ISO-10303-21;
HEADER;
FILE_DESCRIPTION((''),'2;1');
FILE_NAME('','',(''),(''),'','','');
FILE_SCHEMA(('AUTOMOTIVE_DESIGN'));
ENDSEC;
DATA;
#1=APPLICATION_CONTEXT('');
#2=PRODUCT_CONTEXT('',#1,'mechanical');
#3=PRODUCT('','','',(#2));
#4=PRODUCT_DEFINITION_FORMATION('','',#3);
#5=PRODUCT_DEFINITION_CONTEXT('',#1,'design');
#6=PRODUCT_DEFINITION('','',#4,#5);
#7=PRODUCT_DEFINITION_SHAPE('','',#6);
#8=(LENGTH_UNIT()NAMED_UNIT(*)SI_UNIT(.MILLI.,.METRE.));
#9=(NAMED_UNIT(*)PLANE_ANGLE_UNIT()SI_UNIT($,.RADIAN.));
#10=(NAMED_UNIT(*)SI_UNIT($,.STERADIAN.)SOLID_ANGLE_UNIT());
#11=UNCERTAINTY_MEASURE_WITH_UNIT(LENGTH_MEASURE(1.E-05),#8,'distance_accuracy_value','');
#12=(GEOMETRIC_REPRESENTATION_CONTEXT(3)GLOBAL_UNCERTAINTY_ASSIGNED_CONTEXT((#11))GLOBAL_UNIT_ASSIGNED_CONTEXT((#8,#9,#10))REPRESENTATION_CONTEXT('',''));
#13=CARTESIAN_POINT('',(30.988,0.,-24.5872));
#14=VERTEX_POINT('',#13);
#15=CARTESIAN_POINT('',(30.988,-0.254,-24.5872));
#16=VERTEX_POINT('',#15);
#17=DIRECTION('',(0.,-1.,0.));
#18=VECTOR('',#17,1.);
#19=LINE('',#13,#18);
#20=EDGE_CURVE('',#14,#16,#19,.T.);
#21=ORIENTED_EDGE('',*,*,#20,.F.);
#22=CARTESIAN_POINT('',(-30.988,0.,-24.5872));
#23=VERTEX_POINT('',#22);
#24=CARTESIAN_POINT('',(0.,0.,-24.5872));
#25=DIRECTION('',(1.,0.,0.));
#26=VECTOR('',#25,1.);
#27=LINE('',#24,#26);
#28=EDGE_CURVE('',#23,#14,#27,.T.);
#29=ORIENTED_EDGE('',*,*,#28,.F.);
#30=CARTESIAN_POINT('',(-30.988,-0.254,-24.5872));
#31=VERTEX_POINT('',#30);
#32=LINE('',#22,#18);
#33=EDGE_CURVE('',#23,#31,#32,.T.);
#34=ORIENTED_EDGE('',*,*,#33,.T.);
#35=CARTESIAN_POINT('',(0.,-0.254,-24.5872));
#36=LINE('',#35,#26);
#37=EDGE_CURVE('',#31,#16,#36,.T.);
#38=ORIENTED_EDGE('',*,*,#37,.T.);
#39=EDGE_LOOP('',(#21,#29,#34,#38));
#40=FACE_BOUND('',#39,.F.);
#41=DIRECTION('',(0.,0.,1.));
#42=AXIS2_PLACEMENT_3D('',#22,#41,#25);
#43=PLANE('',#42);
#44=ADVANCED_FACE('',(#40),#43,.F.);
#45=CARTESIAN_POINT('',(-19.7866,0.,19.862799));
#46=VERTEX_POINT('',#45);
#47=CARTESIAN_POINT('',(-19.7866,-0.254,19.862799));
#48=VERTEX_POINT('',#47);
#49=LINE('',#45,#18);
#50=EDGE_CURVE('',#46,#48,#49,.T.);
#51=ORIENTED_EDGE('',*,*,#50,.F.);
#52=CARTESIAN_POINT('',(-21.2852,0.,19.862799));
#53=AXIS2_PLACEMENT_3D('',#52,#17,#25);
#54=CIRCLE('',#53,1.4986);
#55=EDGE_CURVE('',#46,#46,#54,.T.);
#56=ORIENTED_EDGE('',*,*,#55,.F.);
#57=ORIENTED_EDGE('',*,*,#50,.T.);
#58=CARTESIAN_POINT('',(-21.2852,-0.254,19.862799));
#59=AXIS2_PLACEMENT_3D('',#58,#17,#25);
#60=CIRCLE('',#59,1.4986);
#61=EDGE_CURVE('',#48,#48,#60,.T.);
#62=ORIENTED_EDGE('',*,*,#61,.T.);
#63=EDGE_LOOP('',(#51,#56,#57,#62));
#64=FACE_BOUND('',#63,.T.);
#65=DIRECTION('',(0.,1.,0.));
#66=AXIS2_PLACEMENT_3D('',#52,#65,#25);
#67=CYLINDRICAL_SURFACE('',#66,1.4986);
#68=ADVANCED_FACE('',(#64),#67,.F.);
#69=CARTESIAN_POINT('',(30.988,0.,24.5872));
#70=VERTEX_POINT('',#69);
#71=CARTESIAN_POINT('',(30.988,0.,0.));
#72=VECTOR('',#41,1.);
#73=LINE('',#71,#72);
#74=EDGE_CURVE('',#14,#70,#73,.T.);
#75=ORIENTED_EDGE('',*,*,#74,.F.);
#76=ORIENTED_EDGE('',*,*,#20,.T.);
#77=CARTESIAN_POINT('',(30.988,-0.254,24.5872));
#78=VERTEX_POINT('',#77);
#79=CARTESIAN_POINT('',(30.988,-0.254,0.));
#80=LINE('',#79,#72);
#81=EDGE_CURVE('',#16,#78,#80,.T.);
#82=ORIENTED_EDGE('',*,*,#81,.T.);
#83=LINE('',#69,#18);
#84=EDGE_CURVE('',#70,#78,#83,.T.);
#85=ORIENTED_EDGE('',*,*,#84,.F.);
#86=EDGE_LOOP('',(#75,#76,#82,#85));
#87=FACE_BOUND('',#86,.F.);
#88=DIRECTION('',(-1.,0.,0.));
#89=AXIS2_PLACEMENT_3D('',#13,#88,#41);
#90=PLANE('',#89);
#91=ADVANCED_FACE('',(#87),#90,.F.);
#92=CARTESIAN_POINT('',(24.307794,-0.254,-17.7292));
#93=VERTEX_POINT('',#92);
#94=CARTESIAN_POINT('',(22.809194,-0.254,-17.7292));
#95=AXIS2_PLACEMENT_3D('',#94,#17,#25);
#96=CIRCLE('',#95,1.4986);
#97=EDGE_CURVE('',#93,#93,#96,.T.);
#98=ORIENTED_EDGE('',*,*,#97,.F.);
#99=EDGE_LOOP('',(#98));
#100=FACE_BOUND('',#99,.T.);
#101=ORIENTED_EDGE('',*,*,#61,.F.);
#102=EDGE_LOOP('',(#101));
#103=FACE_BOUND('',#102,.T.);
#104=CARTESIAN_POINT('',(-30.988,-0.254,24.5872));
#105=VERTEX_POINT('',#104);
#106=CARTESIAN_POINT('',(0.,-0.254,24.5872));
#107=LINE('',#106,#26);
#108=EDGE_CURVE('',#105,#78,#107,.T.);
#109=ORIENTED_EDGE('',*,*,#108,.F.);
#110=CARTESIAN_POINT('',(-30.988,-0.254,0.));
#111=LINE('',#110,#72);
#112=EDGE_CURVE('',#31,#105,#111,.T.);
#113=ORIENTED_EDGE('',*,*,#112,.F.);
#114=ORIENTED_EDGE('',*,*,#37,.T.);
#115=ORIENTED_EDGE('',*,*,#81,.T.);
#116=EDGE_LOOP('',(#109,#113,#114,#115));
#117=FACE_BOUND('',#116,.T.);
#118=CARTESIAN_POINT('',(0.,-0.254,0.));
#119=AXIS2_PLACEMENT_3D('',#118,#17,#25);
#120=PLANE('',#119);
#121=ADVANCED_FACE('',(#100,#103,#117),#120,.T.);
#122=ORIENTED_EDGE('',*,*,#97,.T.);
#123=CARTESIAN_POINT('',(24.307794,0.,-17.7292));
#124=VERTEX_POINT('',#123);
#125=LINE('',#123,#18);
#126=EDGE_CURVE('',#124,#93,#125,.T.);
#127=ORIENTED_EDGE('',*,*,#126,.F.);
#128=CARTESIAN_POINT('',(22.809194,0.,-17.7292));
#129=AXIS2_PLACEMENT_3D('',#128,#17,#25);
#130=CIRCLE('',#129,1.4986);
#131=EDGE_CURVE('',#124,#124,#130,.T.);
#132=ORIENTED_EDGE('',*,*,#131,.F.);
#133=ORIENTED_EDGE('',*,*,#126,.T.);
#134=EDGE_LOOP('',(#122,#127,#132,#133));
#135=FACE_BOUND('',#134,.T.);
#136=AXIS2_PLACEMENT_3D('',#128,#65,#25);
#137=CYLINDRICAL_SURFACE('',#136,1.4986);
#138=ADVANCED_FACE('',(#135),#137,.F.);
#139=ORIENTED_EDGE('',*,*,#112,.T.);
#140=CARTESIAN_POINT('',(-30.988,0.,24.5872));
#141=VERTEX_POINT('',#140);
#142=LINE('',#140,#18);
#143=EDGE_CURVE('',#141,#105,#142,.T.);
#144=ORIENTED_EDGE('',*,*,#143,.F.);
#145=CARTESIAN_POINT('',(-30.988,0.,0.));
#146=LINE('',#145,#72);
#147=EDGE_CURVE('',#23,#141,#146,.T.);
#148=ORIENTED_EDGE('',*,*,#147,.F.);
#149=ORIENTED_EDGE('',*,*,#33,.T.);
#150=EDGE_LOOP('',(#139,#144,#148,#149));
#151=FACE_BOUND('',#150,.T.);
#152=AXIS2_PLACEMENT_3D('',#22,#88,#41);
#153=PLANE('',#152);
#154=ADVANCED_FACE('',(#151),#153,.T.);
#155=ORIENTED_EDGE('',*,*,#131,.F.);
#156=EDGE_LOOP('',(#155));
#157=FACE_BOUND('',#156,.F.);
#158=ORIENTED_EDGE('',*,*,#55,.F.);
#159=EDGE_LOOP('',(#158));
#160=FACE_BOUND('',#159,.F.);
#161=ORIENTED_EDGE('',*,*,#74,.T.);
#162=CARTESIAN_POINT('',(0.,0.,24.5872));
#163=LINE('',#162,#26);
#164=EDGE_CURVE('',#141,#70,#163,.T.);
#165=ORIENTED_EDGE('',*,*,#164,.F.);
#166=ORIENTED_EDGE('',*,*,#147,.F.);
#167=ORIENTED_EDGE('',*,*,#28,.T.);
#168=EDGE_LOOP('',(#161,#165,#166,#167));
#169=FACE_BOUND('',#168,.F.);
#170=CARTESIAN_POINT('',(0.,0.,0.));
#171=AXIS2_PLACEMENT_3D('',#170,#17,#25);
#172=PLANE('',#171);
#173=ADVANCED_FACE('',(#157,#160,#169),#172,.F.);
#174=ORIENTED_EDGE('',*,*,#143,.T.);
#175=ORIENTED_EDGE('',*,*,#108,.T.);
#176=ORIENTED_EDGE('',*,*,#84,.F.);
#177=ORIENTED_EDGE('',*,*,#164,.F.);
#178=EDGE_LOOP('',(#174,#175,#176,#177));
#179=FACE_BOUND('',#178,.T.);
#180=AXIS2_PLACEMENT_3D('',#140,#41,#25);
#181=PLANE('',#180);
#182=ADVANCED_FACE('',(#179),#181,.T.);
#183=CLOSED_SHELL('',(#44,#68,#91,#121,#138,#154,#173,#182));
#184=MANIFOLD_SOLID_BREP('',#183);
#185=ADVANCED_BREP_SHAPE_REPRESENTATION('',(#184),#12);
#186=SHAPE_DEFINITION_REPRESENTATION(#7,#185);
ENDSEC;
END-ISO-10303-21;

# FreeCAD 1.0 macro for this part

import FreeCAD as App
import Part
import Sketcher
Q = App.Units.Quantity


def add_polygon(sketch, points):
    """Adds a closed chain of lines whose ends are joined by coincident constraints."""
    first, n = sketch.GeometryCount, len(points)
    for a, b in zip(points, points[1:] + points[:1]):
        sketch.addGeometry(Part.LineSegment(App.Vector(*a, 0), App.Vector(*b, 0)), False)
    for i in range(n):
        sketch.addConstraint(Sketcher.Constraint("Coincident", first + i, 2, first + (i + 1) % n, 1))

doc = App.newDocument("Part")
params = doc.addObject("Spreadsheet::Sheet", "Params")
for row, (alias, value) in enumerate([
    ("sketch1_diameter", "0.118 in"),
    ("sketch1_width", "2.44 in"),
    ("sketch1_height", "1.936 in"),
    ("pad1_length", "0.01 in"),
], start=1):
    params.set(f"A{row}", alias)
    params.set(f"B{row}", "=" + value)
    params.setAlias(f"B{row}", alias)

body = doc.addObject("PartDesign::Body", "Body")

# Sketch on XZ plane
sketch1 = doc.addObject("Sketcher::SketchObject", "Sketch")
body.addObject(sketch1)
sketch1.AttachmentSupport = (doc.XZ_Plane, [""])
sketch1.MapMode = "FlatFace"
add_polygon(sketch1, [(-31, 24.6), (-31, -24.6), (31, -24.6), (31, 24.6)])  # lines 0-3
sketch1.addGeometry(Part.Circle(App.Vector(22.8, -17.7, 0), App.Vector(0, 0, 1), 1.5), False)  # 4
sketch1.addGeometry(Part.Circle(App.Vector(-21.3, 19.9, 0), App.Vector(0, 0, 1), 1.5), False)  # 5
sketch1.addConstraint([
    Sketcher.Constraint("Vertical", 0),
    Sketcher.Constraint("Horizontal", 1),
    Sketcher.Constraint("Vertical", 2),
    Sketcher.Constraint("Horizontal", 3),
    Sketcher.Constraint("Equal", 4, 5),
    Sketcher.Constraint("Symmetric", 0, 2, 2, 2, -1, 1),
    Sketcher.Constraint("Diameter", 4, Q("0.118 in")),
    Sketcher.Constraint("DistanceX", 1, 1, 1, 2, Q("2.44 in")),
    Sketcher.Constraint("DistanceY", 0, 2, 0, 1, Q("1.936 in")),
    Sketcher.Constraint("DistanceY", 4, 3, 5, 3, Q("1.48 in")),
    Sketcher.Constraint("DistanceY", 0, 2, 5, 3, Q("1.75 in")),
    Sketcher.Constraint("DistanceX", 5, 3, -1, 1, Q("0.838 in")),
    Sketcher.Constraint("DistanceX", -1, 1, 4, 3, 22.809194),
])
sketch1.setExpression("Constraints[10]", "Params.sketch1_diameter")
sketch1.setExpression("Constraints[11]", "Params.sketch1_width")
sketch1.setExpression("Constraints[12]", "Params.sketch1_height")
pad1 = doc.addObject("PartDesign::Pad", "Pad")
body.addObject(pad1)
pad1.Profile = sketch1
pad1.setExpression("Length", "Params.pad1_length")

doc.recompute()
